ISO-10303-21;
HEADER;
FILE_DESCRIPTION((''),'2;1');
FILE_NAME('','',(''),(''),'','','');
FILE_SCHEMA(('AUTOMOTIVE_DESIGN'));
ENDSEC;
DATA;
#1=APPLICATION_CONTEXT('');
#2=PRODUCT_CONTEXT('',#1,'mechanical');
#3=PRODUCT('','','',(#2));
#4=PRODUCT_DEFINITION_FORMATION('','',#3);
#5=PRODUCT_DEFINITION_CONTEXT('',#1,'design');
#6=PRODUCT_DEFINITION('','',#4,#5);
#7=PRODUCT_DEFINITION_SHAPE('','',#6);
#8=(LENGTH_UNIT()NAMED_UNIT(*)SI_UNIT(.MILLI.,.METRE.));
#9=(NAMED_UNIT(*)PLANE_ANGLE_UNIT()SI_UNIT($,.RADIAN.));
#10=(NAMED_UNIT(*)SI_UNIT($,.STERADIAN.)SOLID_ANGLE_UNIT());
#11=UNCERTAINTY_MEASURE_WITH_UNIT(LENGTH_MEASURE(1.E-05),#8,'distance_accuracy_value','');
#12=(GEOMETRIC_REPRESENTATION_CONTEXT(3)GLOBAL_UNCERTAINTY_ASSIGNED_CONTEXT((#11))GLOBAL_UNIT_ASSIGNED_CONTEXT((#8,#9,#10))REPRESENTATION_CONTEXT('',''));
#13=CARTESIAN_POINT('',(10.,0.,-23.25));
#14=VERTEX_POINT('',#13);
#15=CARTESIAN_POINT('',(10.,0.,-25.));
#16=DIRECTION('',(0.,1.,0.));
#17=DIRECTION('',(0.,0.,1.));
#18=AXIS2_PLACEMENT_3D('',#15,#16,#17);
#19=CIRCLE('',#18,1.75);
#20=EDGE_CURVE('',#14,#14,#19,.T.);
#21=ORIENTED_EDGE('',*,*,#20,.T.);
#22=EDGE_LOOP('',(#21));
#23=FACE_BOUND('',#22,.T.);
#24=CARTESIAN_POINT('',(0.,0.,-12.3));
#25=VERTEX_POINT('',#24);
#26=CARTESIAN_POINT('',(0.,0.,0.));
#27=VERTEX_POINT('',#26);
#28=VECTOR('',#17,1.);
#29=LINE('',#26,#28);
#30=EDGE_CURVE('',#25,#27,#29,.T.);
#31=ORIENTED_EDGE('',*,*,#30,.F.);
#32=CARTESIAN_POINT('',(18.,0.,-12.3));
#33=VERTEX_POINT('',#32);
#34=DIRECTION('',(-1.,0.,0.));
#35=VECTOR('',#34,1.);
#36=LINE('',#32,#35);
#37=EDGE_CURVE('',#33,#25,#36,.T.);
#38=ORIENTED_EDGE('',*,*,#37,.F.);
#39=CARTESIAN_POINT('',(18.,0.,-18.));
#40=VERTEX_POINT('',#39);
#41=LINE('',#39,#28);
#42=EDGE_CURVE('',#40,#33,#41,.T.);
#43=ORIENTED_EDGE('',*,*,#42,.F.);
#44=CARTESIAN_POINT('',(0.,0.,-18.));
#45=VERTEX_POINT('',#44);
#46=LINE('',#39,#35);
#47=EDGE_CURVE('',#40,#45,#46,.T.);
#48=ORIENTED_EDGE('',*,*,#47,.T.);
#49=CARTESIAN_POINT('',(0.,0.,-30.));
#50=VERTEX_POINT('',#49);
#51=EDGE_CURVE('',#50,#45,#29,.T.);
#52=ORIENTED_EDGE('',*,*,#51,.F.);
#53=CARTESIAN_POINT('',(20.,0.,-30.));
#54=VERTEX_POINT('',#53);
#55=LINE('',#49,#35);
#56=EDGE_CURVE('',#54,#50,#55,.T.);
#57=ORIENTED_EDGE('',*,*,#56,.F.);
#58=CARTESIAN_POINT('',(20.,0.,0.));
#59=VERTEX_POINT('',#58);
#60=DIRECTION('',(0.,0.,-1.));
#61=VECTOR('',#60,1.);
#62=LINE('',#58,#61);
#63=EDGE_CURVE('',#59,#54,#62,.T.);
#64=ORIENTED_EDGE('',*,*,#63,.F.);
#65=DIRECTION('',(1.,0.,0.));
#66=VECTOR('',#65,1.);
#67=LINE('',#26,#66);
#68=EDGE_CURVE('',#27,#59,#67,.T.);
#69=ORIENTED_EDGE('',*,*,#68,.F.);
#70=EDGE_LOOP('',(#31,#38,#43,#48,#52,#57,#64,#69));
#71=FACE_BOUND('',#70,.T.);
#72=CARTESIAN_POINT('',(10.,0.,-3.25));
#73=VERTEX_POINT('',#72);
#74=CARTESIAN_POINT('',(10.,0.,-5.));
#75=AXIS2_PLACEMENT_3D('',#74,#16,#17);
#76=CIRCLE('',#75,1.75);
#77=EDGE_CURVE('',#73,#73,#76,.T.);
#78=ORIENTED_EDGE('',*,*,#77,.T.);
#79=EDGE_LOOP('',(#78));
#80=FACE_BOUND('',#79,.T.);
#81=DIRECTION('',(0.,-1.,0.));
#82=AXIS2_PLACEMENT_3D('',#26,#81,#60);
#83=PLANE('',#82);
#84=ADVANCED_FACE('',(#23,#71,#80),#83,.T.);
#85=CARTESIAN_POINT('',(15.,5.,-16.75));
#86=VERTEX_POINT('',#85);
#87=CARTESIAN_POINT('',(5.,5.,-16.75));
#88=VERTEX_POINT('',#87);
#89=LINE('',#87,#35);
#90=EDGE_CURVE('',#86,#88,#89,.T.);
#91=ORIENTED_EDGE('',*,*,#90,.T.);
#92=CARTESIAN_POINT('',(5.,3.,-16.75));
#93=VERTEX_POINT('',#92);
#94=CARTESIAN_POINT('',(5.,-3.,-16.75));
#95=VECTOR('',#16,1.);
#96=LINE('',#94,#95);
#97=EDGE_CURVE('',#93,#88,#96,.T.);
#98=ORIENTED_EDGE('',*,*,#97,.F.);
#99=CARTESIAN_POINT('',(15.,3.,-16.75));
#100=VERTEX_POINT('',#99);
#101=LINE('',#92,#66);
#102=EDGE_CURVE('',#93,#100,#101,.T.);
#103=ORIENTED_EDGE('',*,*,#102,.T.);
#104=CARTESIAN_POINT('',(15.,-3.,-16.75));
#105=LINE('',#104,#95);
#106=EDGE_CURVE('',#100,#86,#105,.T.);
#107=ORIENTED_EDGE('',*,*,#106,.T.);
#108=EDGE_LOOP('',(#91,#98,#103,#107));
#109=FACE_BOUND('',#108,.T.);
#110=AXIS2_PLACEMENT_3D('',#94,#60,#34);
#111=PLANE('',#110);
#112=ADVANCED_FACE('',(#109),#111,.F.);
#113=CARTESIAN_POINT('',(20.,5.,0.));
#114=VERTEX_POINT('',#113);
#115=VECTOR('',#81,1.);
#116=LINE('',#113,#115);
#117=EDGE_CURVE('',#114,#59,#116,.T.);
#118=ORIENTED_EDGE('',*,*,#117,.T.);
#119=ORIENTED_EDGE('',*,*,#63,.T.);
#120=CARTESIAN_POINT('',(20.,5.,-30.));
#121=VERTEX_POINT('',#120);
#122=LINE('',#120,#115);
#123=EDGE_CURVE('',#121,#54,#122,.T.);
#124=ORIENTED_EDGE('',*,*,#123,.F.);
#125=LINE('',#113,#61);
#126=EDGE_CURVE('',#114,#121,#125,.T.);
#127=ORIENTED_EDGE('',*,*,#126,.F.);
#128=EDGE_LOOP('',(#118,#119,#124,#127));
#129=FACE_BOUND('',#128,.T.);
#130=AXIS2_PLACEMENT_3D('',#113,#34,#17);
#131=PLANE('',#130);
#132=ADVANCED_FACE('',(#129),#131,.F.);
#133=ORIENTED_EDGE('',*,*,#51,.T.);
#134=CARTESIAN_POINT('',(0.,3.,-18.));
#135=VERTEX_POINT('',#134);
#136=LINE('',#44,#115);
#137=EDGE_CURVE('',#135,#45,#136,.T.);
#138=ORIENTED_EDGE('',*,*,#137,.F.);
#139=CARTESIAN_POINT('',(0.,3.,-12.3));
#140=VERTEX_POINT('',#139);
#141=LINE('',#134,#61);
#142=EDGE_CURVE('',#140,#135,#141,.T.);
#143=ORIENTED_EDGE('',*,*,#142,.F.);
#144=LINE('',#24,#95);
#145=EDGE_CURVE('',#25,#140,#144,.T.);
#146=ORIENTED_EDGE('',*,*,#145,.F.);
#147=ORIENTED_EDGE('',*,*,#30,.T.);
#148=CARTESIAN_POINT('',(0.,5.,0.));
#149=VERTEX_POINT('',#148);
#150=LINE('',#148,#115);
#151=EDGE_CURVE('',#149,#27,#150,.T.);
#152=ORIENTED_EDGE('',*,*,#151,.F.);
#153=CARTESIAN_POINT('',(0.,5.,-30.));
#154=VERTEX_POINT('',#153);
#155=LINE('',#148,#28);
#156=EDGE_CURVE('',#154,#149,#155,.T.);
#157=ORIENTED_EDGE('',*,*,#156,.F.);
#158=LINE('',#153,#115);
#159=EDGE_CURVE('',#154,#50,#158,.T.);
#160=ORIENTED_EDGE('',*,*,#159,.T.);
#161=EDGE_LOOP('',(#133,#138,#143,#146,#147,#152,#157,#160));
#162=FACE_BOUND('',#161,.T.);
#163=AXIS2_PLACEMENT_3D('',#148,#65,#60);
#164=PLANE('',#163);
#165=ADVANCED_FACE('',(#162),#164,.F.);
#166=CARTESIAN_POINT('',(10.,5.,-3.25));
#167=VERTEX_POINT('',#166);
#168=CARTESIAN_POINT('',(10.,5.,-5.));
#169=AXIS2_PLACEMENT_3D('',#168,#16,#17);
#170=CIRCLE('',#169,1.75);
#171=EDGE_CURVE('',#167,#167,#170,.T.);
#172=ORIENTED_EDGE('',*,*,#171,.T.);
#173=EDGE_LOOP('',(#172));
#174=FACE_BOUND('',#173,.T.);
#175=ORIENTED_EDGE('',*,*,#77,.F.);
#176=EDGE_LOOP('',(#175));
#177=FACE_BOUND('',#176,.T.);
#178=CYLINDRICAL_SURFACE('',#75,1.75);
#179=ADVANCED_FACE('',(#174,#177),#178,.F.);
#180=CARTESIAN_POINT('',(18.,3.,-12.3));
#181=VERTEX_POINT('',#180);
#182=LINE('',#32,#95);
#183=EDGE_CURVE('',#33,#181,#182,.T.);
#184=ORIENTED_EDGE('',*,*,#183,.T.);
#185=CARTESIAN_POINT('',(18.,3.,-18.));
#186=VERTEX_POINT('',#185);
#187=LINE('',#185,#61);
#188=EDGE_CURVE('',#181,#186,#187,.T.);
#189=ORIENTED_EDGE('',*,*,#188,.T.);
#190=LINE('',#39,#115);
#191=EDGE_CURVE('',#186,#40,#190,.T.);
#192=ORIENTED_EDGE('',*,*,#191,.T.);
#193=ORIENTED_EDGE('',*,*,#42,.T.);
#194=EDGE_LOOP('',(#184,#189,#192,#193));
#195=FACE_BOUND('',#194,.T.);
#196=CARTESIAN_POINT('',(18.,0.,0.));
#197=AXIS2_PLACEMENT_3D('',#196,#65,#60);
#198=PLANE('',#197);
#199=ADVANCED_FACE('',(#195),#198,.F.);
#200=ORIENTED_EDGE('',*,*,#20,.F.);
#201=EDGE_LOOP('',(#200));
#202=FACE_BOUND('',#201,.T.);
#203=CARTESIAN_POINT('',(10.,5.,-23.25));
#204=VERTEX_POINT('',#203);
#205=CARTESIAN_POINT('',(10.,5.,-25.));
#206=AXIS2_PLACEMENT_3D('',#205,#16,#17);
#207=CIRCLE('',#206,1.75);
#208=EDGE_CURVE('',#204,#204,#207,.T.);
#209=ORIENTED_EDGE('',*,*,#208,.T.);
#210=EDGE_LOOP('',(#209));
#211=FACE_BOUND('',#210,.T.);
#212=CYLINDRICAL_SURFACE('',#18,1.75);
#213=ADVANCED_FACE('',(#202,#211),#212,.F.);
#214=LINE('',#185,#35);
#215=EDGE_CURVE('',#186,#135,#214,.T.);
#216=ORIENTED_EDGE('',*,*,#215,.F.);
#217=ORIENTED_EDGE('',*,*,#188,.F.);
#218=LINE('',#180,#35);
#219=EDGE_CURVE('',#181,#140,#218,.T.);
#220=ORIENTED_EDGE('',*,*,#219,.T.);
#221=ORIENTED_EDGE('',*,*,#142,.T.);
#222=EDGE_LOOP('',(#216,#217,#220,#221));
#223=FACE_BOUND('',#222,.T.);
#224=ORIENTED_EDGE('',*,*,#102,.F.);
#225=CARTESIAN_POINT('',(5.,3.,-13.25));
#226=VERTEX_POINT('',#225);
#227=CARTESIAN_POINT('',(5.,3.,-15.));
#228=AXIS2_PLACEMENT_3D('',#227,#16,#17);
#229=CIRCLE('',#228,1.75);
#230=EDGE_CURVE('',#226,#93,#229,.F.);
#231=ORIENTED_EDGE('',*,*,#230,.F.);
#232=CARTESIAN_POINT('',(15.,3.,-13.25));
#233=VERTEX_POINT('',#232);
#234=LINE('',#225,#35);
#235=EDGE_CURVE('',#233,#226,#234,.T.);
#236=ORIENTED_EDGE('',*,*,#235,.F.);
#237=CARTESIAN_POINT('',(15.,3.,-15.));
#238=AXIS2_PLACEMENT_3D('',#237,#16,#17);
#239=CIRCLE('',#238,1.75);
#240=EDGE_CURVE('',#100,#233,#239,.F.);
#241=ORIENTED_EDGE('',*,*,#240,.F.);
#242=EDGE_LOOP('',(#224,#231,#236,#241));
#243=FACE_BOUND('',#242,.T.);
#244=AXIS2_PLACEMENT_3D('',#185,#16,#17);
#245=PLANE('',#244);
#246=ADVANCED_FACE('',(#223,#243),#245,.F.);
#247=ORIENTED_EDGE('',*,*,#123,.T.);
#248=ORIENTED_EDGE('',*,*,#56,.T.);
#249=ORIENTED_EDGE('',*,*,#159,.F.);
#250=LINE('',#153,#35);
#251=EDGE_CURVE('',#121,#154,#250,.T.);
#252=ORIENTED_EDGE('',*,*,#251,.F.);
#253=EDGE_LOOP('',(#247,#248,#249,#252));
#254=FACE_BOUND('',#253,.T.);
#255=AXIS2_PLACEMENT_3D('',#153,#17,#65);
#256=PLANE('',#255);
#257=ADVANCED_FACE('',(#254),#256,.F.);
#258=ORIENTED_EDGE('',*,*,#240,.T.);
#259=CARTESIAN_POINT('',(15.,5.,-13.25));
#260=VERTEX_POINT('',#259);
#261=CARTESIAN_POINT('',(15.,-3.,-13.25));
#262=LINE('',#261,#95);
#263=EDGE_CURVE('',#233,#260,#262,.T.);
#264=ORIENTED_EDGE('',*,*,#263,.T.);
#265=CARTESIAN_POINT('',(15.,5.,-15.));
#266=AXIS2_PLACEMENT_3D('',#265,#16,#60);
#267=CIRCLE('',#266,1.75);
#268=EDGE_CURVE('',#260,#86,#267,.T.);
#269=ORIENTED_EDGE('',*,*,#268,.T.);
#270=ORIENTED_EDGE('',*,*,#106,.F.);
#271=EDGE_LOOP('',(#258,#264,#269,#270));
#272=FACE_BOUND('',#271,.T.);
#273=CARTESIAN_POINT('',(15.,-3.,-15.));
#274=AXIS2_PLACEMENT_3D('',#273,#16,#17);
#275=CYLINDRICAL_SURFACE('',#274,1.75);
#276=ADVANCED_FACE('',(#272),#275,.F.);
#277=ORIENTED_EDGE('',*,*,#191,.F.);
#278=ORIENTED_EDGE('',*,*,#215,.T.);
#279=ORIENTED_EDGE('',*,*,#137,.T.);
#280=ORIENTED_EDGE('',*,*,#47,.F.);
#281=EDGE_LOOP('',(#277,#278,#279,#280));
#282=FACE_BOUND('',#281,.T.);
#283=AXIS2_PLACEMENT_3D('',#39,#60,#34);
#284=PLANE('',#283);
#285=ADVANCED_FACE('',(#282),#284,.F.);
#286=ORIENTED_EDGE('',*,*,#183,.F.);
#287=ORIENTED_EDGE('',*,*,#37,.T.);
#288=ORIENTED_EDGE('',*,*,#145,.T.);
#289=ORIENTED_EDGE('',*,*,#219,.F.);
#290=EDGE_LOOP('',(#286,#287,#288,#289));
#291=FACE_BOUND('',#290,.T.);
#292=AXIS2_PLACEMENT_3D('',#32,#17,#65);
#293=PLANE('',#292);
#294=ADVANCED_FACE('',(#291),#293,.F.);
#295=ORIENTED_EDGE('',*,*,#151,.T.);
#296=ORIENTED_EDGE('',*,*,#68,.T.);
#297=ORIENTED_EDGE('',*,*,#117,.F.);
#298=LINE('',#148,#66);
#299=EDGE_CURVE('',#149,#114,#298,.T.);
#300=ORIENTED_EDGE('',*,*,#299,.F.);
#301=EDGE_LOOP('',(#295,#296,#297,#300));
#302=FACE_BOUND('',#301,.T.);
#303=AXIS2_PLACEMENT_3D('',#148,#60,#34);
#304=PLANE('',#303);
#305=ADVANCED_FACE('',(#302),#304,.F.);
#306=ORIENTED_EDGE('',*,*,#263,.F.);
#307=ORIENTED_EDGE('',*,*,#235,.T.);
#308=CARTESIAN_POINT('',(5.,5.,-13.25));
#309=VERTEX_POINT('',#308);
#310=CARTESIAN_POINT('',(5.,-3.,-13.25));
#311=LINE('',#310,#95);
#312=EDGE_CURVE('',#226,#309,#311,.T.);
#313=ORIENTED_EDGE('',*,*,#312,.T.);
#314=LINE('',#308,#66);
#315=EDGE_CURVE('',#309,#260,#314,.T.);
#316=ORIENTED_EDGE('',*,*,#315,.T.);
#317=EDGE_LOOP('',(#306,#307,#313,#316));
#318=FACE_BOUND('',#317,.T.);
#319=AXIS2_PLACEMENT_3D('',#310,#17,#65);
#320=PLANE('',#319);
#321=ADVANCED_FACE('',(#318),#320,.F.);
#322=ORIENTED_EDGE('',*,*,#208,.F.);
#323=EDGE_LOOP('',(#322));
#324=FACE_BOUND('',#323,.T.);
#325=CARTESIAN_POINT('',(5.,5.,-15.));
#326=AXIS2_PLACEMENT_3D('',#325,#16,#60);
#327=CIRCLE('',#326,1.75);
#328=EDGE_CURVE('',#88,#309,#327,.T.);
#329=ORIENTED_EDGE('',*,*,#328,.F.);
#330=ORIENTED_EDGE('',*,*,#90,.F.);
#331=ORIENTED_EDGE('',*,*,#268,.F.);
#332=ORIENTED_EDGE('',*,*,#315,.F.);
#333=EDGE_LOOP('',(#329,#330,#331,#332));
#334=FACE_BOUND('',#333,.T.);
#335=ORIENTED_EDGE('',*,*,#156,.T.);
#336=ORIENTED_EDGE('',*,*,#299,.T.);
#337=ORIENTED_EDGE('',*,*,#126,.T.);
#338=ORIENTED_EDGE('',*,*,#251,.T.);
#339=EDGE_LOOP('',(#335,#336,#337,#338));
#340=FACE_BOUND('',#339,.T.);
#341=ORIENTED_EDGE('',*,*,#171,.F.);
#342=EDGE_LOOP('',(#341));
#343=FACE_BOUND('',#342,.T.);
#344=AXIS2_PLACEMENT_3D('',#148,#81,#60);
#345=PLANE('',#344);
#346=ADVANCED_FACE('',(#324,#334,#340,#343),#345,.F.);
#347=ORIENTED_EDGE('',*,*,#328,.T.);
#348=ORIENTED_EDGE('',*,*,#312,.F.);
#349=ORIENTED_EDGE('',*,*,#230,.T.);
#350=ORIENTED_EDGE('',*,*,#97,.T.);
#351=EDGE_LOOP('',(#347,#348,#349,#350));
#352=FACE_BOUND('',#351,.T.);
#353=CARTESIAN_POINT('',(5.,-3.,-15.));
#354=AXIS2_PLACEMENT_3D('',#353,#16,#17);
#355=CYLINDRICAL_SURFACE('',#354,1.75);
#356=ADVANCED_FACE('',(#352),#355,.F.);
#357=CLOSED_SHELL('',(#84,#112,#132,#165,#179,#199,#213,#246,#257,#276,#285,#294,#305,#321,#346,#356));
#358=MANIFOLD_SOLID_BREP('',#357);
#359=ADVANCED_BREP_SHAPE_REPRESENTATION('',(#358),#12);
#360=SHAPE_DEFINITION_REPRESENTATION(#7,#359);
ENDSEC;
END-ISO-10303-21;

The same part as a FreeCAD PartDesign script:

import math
import FreeCAD as App
import Part
import Sketcher
from FreeCAD import Vector
Q = App.Units.Quantity


def add_polygon(sketch, points):
    """Adds a closed chain of lines whose ends are joined by coincident constraints."""
    first, n = sketch.GeometryCount, len(points)
    for a, b in zip(points, points[1:] + points[:1]):
        sketch.addGeometry(Part.LineSegment(App.Vector(*a, 0), App.Vector(*b, 0)), False)
    for i in range(n):
        sketch.addConstraint(Sketcher.Constraint("Coincident", first + i, 2, first + (i + 1) % n, 1))

doc = App.newDocument("Part")
body = doc.addObject("PartDesign::Body", "Body")

sketch1 = doc.addObject("Sketcher::SketchObject", "Sketch")
body.addObject(sketch1)
sketch1.AttachmentSupport = (doc.XZ_Plane, [""])
sketch1.MapMode = "FlatFace"
add_polygon(sketch1, [(0, -30), (0, 0), (20, 0), (20, -30)])
sketch1.addConstraint([
    Sketcher.Constraint("Vertical", 0),
    Sketcher.Constraint("Horizontal", 1),
    Sketcher.Constraint("Vertical", 2),
    Sketcher.Constraint("Horizontal", 3),
    Sketcher.Constraint("Coincident", 0, 2, -1, 1),
    Sketcher.Constraint("DistanceX", 1, 1, 1, 2, Q("20 mm")),
    Sketcher.Constraint("DistanceY", 0, 1, 0, 2, Q("30 mm")),
])
pad1 = doc.addObject("PartDesign::Pad", "Pad")
body.addObject(pad1)
pad1.Profile = sketch1
pad1.Length = 5
pad1.Reversed = True

sketch2 = doc.addObject("Sketcher::SketchObject", "Sketch001")
body.addObject(sketch2)
sketch2.AttachmentSupport = (doc.XZ_Plane, [""])
sketch2.MapMode = "FlatFace"
sketch2.AttachmentOffset = App.Placement(Vector(0, 0, -5), App.Rotation())
sketch2.addGeometry([
    Part.LineSegment(Vector(15, -16.8, 0), Vector(5, -16.8, 0)),
    Part.ArcOfCircle(Part.Circle(Vector(5, -15, 0), Vector(0, 0, 1), 1.8), math.radians(90), math.radians(270)),
    Part.LineSegment(Vector(5, -13.2, 0), Vector(15, -13.2, 0)),
    Part.ArcOfCircle(Part.Circle(Vector(15, -15, 0), Vector(0, 0, 1), 1.8), math.radians(-90), math.radians(90)),
], False)
sketch2.addConstraint([
    Sketcher.Constraint("Tangent", 0, 2, 1, 2),
    Sketcher.Constraint("Tangent", 1, 1, 2, 1),
    Sketcher.Constraint("Tangent", 2, 2, 3, 2),
    Sketcher.Constraint("Tangent", 3, 1, 0, 1),
    Sketcher.Constraint("Horizontal", 0),
    Sketcher.Constraint("Horizontal", 2),
    Sketcher.Constraint("DistanceX", 0, 2, 0, 1, Q("10 mm")),
    Sketcher.Constraint("Radius", 1, Q("1.75 mm")),
    Sketcher.Constraint("DistanceX", -1, 1, 1, 3, Q("5 mm")),
    Sketcher.Constraint("DistanceY", 1, 3, -1, 1, Q("15 mm")),
])
pocket1 = doc.addObject("PartDesign::Pocket", "Pocket")
body.addObject(pocket1)
pocket1.Profile = sketch2
pocket1.Length = 8
pocket1.Reversed = True

sketch3 = doc.addObject("Sketcher::SketchObject", "Sketch002")
body.addObject(sketch3)
sketch3.AttachmentSupport = (doc.XZ_Plane, [""])
sketch3.MapMode = "FlatFace"
sketch3.AttachmentOffset = App.Placement(Vector(0, 0, -5), App.Rotation())
sketch3.addGeometry([
    Part.Circle(Vector(10, -25, 0), Vector(0, 0, 1), 1.8),
    Part.Circle(Vector(10, -5, 0), Vector(0, 0, 1), 1.8),
], False)
sketch3.addConstraint([
    Sketcher.Constraint("Equal", 0, 1),
    Sketcher.Constraint("Vertical", 0, 3, 1, 3),
    Sketcher.Constraint("Diameter", 0, Q("3.5 mm")),
    Sketcher.Constraint("DistanceX", -1, 1, 0, 3, Q("10 mm")),
    Sketcher.Constraint("DistanceY", 0, 3, -1, 1, Q("25 mm")),
    Sketcher.Constraint("DistanceY", 1, 3, -1, 1, Q("5 mm")),
])
pocket2 = doc.addObject("PartDesign::Pocket", "Pocket001")
body.addObject(pocket2)
pocket2.Profile = sketch3
pocket2.Type = "ThroughAll"
pocket2.Reversed = True

sketch4 = doc.addObject("Sketcher::SketchObject", "Sketch003")
body.addObject(sketch4)
sketch4.AttachmentSupport = (doc.YZ_Plane, [""])
sketch4.MapMode = "FlatFace"
add_polygon(sketch4, [(3, -18), (0, -18), (0, -12.3), (3, -12.3)])
sketch4.addConstraint([
    Sketcher.Constraint("Horizontal", 0),
    Sketcher.Constraint("Vertical", 1),
    Sketcher.Constraint("Horizontal", 2),
    Sketcher.Constraint("Vertical", 3),
    Sketcher.Constraint("PointOnObject", 0, 2, -2),
    Sketcher.Constraint("DistanceX", 0, 2, 0, 1, Q("3 mm")),
    Sketcher.Constraint("DistanceY", 1, 1, 1, 2, Q("5.7 mm")),
    Sketcher.Constraint("DistanceY", 0, 2, -1, 1, Q("18 mm")),
])
pocket3 = doc.addObject("PartDesign::Pocket", "Pocket002")
body.addObject(pocket3)
pocket3.Profile = sketch4
pocket3.Length = 18
pocket3.Reversed = True

doc.recompute()
